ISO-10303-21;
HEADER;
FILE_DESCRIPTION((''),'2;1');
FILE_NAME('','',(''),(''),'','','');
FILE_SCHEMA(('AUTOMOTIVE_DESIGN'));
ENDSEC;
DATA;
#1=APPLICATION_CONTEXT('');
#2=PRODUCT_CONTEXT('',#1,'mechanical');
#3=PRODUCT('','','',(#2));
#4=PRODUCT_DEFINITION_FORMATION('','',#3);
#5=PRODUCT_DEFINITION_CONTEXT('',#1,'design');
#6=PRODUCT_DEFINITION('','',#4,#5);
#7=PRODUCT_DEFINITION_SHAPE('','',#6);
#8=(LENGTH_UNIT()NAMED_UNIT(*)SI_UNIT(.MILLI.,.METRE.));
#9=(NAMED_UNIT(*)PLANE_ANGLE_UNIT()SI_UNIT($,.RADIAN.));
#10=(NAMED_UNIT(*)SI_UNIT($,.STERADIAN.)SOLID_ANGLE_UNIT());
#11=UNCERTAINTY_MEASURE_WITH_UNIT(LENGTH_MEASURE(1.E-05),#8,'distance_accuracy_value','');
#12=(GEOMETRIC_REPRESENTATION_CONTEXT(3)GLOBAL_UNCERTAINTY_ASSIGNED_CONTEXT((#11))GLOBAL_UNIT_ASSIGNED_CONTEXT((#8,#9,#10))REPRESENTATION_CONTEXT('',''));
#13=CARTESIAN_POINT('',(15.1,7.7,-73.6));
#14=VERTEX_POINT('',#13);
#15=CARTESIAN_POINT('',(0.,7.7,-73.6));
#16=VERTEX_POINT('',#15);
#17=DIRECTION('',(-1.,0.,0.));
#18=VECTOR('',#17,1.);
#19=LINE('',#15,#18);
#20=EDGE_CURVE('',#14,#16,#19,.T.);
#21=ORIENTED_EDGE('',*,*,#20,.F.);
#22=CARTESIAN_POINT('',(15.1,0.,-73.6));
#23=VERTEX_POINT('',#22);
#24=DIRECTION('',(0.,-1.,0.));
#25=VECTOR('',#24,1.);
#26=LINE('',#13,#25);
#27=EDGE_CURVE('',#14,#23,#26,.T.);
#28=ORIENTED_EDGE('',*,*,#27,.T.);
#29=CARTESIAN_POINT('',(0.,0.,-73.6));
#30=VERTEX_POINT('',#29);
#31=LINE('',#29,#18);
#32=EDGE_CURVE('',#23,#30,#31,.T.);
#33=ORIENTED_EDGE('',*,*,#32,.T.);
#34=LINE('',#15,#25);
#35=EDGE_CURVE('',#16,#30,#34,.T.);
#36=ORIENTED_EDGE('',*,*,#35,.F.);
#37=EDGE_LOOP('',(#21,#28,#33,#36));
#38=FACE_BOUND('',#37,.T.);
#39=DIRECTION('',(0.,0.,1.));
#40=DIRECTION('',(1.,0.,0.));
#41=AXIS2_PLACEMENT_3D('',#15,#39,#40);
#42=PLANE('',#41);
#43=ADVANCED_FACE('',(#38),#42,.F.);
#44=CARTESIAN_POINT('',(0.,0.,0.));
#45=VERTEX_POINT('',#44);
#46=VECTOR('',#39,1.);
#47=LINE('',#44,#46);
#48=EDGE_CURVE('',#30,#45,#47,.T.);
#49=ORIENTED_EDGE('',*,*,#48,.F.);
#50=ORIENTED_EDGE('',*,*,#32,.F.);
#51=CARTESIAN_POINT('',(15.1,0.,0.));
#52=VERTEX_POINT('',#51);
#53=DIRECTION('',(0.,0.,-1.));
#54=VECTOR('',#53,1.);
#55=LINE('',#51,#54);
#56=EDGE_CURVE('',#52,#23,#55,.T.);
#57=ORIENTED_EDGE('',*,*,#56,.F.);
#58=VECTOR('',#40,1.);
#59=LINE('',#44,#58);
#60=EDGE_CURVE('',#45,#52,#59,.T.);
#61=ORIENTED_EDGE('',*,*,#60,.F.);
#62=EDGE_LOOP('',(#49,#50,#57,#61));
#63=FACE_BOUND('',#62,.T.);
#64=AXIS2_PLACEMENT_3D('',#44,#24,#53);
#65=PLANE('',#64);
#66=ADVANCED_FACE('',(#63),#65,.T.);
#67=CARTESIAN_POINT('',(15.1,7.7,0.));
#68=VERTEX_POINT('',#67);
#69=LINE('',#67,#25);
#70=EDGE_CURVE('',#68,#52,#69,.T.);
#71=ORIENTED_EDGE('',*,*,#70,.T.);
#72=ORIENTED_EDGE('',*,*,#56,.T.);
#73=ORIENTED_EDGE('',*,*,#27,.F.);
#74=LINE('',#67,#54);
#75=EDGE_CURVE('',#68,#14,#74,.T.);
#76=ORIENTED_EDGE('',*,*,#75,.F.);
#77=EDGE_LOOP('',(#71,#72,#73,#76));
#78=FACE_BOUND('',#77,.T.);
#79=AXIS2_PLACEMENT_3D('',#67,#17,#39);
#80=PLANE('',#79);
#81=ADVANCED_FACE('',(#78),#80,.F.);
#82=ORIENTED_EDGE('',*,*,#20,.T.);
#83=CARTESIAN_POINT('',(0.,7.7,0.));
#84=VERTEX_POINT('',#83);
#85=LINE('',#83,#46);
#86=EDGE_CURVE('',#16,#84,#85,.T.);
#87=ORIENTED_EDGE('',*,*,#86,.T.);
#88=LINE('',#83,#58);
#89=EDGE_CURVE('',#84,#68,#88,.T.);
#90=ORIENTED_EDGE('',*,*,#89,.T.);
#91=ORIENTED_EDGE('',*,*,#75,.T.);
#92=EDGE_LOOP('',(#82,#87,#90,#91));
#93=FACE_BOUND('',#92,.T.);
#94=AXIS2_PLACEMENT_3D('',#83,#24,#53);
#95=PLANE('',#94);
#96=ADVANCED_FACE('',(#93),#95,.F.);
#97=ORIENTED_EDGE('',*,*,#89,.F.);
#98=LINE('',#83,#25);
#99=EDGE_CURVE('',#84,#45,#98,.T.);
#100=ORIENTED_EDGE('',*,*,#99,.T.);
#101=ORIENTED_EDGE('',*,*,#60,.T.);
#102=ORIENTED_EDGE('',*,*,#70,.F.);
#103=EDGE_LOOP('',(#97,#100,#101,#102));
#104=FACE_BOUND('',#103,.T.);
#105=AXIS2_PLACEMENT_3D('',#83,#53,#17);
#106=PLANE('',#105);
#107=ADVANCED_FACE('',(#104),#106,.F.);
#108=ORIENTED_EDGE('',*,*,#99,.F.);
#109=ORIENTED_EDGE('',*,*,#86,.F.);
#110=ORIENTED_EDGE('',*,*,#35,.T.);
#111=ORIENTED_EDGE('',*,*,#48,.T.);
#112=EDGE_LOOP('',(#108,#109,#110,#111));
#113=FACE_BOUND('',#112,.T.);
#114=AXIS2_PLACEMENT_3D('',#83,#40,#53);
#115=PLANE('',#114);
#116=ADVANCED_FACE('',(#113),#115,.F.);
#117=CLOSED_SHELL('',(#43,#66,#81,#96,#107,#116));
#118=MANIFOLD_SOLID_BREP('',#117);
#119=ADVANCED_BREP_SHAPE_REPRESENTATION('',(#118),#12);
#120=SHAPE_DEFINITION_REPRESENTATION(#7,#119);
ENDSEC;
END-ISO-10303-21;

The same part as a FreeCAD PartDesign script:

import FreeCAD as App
import Part
import Sketcher

V = App.Vector
Q = App.Units.Quantity


def add_polygon(sketch, points):
    """Adds a closed chain of lines whose ends are joined by coincident constraints."""
    first, n = sketch.GeometryCount, len(points)
    for a, b in zip(points, points[1:] + points[:1]):
        sketch.addGeometry(Part.LineSegment(App.Vector(*a, 0), App.Vector(*b, 0)), False)
    for i in range(n):
        sketch.addConstraint(Sketcher.Constraint("Coincident", first + i, 2, first + (i + 1) % n, 1))

doc = App.newDocument("Part")
params = doc.addObject("Spreadsheet::Sheet", "Params")
for row, (alias, value) in enumerate([
    ("sketch1_width", "15.1 mm"),
    ("sketch1_height", "73.6 mm"),
    ("pad1_length", "7.7 mm"),
], start=1):
    params.set(f"A{row}", alias)
    params.set(f"B{row}", "=" + value)
    params.setAlias(f"B{row}", alias)

body = doc.addObject("PartDesign::Body", "Body")

# Sketch on XZ plane
sketch1 = body.newObject("Sketcher::SketchObject", "Sketch")
sketch1.AttachmentSupport = (doc.getObject("XZ_Plane"), [""])
sketch1.MapMode = "FlatFace"
add_polygon(sketch1, [(0, -73.6), (0, 0), (15.1, 0), (15.1, -73.6)])  # lines 0-3
sketch1.addConstraint(Sketcher.Constraint("Vertical", 0))
sketch1.addConstraint(Sketcher.Constraint("Horizontal", 1))
sketch1.addConstraint(Sketcher.Constraint("Vertical", 2))
sketch1.addConstraint(Sketcher.Constraint("Horizontal", 3))
sketch1.addConstraint(Sketcher.Constraint("Coincident", 0, 2, -1, 1))
sketch1.addConstraint(Sketcher.Constraint("DistanceX", 1, 1, 1, 2, Q("15.1 mm")))
sketch1.addConstraint(Sketcher.Constraint("DistanceY", 0, 1, 0, 2, Q("73.6 mm")))
sketch1.setExpression("Constraints[9]", "Params.sketch1_width")
sketch1.setExpression("Constraints[10]", "Params.sketch1_height")
pad1 = body.newObject("PartDesign::Pad", "Pad")
pad1.Profile = sketch1
pad1.setExpression("Length", "Params.pad1_length")
pad1.Reversed = True

doc.recompute()
